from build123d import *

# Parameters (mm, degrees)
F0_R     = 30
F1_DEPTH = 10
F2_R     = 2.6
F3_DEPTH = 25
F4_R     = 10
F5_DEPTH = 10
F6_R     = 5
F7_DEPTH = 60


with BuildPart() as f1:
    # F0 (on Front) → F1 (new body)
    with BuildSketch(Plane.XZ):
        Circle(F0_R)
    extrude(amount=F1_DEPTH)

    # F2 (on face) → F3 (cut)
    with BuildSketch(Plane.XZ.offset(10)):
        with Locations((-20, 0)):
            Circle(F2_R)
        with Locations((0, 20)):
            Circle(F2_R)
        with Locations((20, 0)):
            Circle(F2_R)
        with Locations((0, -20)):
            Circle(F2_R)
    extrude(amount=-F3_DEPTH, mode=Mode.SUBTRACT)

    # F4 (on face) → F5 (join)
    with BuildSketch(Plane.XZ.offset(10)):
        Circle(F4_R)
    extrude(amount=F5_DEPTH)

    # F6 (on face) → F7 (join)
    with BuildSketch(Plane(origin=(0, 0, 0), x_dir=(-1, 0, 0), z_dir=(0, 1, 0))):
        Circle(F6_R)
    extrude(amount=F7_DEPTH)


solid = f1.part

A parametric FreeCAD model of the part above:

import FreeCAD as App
import Part
import Sketcher
from FreeCAD import Vector

doc = App.newDocument("Part")
body = doc.addObject("PartDesign::Body", "Body")

sketch1 = body.newObject("Sketcher::SketchObject", "Sketch")
sketch1.AttachmentSupport = (doc.getObject("XZ_Plane"), [""])
sketch1.MapMode = "FlatFace"
sketch1.addGeometry(Part.Circle(Vector(0, 0, 0), Vector(0, 0, 1), 30), False)
sketch1.addConstraint([
    Sketcher.Constraint("Coincident", 0, 3, -1, 1),
    Sketcher.Constraint("Diameter", 0, 60.0),
])
pad1 = body.newObject("PartDesign::Pad", "Pad")
pad1.Profile = sketch1
pad1.Length = 10

sketch2 = body.newObject("Sketcher::SketchObject", "Sketch001")
sketch2.AttachmentSupport = (doc.getObject("XZ_Plane"), [""])
sketch2.MapMode = "FlatFace"
sketch2.AttachmentOffset = App.Placement(Vector(0, 0, 10), App.Rotation())
sketch2.addGeometry([
    Part.Circle(Vector(-20, 0, 0), Vector(0, 0, 1), 2.6),
    Part.Circle(Vector(0, 20, 0), Vector(0, 0, 1), 2.6),
    Part.Circle(Vector(20, 0, 0), Vector(0, 0, 1), 2.6),
    Part.Circle(Vector(0, -20, 0), Vector(0, 0, 1), 2.6),
], False)
sketch2.addConstraint([
    Sketcher.Constraint("Equal", 0, 1),
    Sketcher.Constraint("Equal", 1, 2),
    Sketcher.Constraint("Equal", 2, 3),
    Sketcher.Constraint("Symmetric", 0, 3, 2, 3, -1, 1),
    Sketcher.Constraint("Symmetric", 1, 3, 3, 3, -1, 1),
    Sketcher.Constraint("PointOnObject", 0, 3, -1),
    Sketcher.Constraint("PointOnObject", 1, 3, -2),
    Sketcher.Constraint("Diameter", 0, 5.2),
    Sketcher.Constraint("DistanceX", 0, 3, -1, 1, 20.0),
    Sketcher.Constraint("DistanceY", -1, 1, 1, 3, 20.0),
])
pocket1 = body.newObject("PartDesign::Pocket", "Pocket")
pocket1.Profile = sketch2
pocket1.Length = 25

sketch3 = body.newObject("Sketcher::SketchObject", "Sketch002")
sketch3.AttachmentSupport = (doc.getObject("XZ_Plane"), [""])
sketch3.MapMode = "FlatFace"
sketch3.AttachmentOffset = App.Placement(Vector(0, 0, 10), App.Rotation())
sketch3.addGeometry(Part.Circle(Vector(0, 0, 0), Vector(0, 0, 1), 10), False)
sketch3.addConstraint([
    Sketcher.Constraint("Coincident", 0, 3, -1, 1),
    Sketcher.Constraint("Diameter", 0, 20.0),
])
pad2 = body.newObject("PartDesign::Pad", "Pad001")
pad2.Profile = sketch3
pad2.Length = 10

sketch4 = body.newObject("Sketcher::SketchObject", "Sketch003")
sketch4.AttachmentSupport = (doc.getObject("XZ_Plane"), [""])
sketch4.MapMode = "FlatFace"
sketch4.addGeometry(Part.Circle(Vector(0, 0, 0), Vector(0, 0, 1), 5), False)
sketch4.addConstraint([
    Sketcher.Constraint("Coincident", 0, 3, -1, 1),
    Sketcher.Constraint("Diameter", 0, 10.0),
])
pad3 = body.newObject("PartDesign::Pad", "Pad002")
pad3.Profile = sketch4
pad3.Length = 60
pad3.Reversed = True

doc.recompute()
